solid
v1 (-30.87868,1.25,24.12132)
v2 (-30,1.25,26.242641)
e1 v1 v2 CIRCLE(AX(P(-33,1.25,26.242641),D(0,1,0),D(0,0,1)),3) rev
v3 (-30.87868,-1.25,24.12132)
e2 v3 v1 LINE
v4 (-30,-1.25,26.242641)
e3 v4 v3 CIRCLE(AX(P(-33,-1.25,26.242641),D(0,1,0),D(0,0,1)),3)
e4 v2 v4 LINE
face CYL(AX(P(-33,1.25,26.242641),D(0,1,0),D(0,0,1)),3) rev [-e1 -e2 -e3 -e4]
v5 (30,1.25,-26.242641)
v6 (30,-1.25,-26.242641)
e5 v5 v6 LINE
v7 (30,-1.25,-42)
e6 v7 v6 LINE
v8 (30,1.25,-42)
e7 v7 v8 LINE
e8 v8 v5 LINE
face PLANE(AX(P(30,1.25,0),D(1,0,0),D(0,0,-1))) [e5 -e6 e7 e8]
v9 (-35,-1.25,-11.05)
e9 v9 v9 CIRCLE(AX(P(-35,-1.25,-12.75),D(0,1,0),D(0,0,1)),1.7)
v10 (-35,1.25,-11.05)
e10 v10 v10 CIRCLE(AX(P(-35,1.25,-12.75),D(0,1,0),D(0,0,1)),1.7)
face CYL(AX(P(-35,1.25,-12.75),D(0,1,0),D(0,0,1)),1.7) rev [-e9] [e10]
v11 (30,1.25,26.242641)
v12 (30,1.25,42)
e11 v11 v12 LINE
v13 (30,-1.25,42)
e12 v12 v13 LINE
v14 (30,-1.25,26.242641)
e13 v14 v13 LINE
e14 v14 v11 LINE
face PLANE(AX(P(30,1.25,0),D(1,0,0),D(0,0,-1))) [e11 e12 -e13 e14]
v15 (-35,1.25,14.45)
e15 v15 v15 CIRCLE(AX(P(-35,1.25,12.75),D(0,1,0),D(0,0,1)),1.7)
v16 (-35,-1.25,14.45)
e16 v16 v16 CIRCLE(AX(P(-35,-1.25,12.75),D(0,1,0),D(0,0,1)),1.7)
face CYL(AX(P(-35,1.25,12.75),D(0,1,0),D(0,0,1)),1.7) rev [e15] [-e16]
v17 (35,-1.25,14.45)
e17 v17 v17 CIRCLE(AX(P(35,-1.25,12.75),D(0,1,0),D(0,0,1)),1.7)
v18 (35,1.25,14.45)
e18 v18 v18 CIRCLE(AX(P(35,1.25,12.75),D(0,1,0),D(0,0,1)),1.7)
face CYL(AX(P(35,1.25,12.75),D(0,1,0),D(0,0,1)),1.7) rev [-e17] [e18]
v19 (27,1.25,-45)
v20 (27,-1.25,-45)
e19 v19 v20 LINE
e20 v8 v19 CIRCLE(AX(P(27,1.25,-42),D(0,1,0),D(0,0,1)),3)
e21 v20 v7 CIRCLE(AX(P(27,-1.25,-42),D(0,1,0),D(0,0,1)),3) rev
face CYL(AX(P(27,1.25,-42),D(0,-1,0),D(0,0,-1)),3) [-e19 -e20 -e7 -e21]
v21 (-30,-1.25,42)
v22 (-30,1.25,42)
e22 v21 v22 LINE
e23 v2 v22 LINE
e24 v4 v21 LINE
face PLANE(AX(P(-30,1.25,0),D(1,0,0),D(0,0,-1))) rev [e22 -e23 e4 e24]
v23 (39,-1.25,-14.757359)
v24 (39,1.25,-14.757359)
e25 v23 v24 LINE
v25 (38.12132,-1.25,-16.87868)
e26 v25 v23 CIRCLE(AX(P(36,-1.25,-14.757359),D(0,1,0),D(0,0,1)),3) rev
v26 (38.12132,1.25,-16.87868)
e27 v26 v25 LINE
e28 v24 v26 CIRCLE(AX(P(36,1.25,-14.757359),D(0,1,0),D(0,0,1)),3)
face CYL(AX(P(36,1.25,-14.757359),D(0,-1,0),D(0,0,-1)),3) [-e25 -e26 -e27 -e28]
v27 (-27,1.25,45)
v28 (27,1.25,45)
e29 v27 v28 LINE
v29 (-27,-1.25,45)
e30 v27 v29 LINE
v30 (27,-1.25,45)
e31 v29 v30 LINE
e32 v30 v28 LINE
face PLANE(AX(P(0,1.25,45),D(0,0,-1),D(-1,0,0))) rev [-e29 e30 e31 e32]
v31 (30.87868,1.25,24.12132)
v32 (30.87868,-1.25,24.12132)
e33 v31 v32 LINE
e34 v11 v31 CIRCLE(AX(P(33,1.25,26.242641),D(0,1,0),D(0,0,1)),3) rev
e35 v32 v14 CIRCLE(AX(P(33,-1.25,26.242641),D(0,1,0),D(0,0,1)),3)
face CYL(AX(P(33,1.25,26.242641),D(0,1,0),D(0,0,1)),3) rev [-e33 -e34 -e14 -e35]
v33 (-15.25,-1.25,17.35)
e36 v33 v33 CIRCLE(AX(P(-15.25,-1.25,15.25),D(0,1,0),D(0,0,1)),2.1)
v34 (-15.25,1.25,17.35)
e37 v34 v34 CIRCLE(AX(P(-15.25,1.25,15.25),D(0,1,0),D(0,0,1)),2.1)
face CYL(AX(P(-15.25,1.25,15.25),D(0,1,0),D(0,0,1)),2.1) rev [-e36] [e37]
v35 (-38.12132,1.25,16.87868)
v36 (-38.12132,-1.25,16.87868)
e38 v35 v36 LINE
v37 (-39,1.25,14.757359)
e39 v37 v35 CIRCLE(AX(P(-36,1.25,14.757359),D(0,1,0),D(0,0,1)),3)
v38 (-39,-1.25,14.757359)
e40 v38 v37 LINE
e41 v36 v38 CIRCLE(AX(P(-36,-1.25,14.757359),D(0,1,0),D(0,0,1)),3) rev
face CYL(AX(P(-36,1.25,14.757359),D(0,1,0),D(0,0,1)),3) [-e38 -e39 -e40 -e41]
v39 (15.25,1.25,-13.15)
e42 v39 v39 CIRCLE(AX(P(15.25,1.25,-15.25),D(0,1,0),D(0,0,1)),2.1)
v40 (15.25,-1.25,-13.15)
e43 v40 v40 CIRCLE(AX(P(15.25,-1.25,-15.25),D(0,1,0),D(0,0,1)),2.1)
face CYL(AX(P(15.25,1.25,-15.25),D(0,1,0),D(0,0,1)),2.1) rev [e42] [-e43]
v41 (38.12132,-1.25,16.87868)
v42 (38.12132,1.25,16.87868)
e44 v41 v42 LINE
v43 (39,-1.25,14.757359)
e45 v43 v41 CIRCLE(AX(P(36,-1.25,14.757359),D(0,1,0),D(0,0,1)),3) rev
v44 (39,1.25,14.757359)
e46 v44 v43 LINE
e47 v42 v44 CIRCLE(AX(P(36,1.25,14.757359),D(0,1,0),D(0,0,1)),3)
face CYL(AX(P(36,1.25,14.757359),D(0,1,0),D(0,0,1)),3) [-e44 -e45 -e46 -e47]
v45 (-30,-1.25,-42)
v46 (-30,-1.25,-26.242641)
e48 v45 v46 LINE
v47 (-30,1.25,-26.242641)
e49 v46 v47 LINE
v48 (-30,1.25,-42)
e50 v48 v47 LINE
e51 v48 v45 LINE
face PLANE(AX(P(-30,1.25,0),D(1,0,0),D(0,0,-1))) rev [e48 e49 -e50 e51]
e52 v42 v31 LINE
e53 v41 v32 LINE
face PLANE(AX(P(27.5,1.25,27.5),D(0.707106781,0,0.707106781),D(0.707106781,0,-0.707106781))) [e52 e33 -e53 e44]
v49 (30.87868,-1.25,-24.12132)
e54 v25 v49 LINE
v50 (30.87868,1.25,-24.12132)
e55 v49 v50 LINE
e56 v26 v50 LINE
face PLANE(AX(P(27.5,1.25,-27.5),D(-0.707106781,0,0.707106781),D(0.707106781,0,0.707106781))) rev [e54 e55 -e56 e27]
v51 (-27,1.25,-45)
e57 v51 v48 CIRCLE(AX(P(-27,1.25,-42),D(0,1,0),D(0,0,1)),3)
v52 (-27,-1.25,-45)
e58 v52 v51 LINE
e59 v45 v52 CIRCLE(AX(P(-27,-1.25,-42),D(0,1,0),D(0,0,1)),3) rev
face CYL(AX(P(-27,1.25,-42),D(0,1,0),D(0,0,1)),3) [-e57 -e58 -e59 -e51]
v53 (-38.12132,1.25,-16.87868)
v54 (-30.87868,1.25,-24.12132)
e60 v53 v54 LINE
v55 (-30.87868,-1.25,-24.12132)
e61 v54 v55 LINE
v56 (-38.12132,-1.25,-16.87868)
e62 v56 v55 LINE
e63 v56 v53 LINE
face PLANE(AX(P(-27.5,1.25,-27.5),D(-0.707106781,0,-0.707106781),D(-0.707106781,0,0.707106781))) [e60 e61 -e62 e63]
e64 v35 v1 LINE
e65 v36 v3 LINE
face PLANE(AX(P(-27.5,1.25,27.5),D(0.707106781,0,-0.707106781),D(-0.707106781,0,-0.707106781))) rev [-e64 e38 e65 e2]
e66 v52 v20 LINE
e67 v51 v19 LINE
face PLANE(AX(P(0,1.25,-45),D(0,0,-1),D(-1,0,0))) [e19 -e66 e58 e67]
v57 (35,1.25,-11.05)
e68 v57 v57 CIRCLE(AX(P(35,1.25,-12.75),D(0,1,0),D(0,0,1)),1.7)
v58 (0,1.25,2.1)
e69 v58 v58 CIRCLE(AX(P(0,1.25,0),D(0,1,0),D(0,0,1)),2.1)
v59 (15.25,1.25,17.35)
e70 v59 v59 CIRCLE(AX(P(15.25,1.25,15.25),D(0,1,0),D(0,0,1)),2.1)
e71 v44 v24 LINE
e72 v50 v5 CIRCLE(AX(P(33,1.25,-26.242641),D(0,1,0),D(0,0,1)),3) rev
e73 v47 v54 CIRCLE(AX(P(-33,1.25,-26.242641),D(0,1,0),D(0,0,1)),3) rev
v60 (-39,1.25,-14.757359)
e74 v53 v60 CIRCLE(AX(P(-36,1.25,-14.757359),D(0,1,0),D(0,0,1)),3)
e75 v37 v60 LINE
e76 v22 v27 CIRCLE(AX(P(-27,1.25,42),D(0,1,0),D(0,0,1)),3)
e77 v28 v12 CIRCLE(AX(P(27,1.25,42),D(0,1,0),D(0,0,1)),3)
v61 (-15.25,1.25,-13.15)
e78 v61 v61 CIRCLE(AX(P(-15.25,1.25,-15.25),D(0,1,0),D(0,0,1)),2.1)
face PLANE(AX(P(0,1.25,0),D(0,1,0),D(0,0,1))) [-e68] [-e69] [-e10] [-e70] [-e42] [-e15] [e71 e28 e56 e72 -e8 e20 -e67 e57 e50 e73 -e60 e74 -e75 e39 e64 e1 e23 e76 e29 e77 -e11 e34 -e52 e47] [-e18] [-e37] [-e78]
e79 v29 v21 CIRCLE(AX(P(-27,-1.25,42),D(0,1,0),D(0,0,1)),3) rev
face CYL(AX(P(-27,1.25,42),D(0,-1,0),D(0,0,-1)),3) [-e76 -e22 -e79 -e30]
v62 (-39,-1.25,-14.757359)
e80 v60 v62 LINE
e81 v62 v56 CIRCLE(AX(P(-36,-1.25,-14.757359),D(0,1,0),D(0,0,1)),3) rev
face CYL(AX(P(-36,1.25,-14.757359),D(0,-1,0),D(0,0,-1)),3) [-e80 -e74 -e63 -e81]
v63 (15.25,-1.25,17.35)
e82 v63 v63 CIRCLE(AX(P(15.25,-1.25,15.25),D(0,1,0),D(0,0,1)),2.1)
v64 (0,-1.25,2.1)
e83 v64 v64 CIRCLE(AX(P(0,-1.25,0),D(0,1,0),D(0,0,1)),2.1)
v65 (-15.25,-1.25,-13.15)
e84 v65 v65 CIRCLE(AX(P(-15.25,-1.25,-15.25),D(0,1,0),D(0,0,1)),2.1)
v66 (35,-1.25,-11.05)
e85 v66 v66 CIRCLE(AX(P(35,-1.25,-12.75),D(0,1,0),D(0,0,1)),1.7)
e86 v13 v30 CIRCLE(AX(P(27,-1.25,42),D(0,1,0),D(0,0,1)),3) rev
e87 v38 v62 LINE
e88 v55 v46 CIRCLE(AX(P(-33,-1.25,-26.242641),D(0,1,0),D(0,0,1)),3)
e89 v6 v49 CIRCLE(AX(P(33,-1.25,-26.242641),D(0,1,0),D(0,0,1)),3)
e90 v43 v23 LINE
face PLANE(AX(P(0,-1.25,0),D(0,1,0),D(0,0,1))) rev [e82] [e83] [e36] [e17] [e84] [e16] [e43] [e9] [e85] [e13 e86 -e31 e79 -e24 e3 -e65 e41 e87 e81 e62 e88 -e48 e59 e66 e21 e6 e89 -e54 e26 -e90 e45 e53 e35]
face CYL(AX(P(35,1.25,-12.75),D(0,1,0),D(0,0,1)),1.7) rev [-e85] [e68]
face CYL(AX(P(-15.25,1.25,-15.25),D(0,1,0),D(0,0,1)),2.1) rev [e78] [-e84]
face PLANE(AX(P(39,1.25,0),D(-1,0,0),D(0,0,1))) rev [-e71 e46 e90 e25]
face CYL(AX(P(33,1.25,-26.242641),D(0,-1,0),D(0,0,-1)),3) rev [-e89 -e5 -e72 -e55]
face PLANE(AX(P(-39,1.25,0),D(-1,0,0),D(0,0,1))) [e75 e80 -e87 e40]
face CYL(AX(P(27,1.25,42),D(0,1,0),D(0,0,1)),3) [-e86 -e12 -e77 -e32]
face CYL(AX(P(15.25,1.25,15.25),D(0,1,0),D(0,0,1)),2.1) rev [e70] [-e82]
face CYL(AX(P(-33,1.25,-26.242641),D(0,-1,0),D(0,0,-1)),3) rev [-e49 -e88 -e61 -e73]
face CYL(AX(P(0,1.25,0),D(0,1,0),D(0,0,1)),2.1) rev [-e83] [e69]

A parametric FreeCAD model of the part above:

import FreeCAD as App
import Part
import Sketcher
Q = App.Units.Quantity


def edges_at(feature, points):
    """Names of the edges that pass closest to the given points."""
    edges = feature.Shape.Edges
    near = lambda p: min(range(len(edges)), key=lambda i: edges[i].distToShape(Part.Vertex(*p))[0])
    return sorted({f"Edge{near(p) + 1}" for p in points})

doc = App.newDocument("Part")
params = doc.addObject("Spreadsheet::Sheet", "Params")
for row, (alias, value) in enumerate([
    ("sketch1_width", "60 mm"),
    ("sketch1_height", "20 mm"),
    ("sketch1_height2", "32 mm"),
    ("pad1_length", "2.5 mm"),
    ("fillet_radius", "3 mm"),
    ("sketch2_diameter", "4.2 mm"),
    ("hole_diameter", "4.2 mm"),
    ("sketch3_diameter", "3.4 mm"),
    ("hole2_diameter", "3.4 mm"),
], start=1):
    params.set(f"A{row}", alias)
    params.set(f"B{row}", "=" + value)
    params.setAlias(f"B{row}", alias)

body = doc.addObject("PartDesign::Body", "Body")

sketch1 = doc.addObject("Sketcher::SketchObject", "Sketch")
body.addObject(sketch1)
sketch1.AttachmentSupport = (doc.XZ_Plane, [""])
sketch1.MapMode = "FlatFace"
sketch1.addGeometry([
    Part.LineSegment(App.Vector(30, -45, 0), App.Vector(-30, -45, 0)),
    Part.LineSegment(App.Vector(-30, -45, 0), App.Vector(-30, -25, 0)),
    Part.LineSegment(App.Vector(-30, -25, 0), App.Vector(-39, -16, 0)),
    Part.LineSegment(App.Vector(-39, -16, 0), App.Vector(-39, 16, 0)),
    Part.LineSegment(App.Vector(-39, 16, 0), App.Vector(-30, 25, 0)),
    Part.LineSegment(App.Vector(-30, 25, 0), App.Vector(-30, 45, 0)),
    Part.LineSegment(App.Vector(-30, 45, 0), App.Vector(30, 45, 0)),
    Part.LineSegment(App.Vector(30, 45, 0), App.Vector(30, 25, 0)),
    Part.LineSegment(App.Vector(30, 25, 0), App.Vector(39, 16, 0)),
    Part.LineSegment(App.Vector(39, 16, 0), App.Vector(39, -16, 0)),
    Part.LineSegment(App.Vector(39, -16, 0), App.Vector(30, -25, 0)),
    Part.LineSegment(App.Vector(30, -25, 0), App.Vector(30, -45, 0)),
], False)
sketch1.addConstraint([
    Sketcher.Constraint("Coincident", 0, 2, 1, 1),
    Sketcher.Constraint("Coincident", 1, 2, 2, 1),
    Sketcher.Constraint("Coincident", 2, 2, 3, 1),
    Sketcher.Constraint("Coincident", 3, 2, 4, 1),
    Sketcher.Constraint("Coincident", 4, 2, 5, 1),
    Sketcher.Constraint("Coincident", 5, 2, 6, 1),
    Sketcher.Constraint("Coincident", 6, 2, 7, 1),
    Sketcher.Constraint("Coincident", 7, 2, 8, 1),
    Sketcher.Constraint("Coincident", 8, 2, 9, 1),
    Sketcher.Constraint("Coincident", 9, 2, 10, 1),
    Sketcher.Constraint("Coincident", 10, 2, 11, 1),
    Sketcher.Constraint("Coincident", 11, 2, 0, 1),
    Sketcher.Constraint("Horizontal", 0),
    Sketcher.Constraint("Vertical", 1),
    Sketcher.Constraint("Vertical", 3),
    Sketcher.Constraint("Vertical", 5),
    Sketcher.Constraint("Horizontal", 6),
    Sketcher.Constraint("Vertical", 7),
    Sketcher.Constraint("Vertical", 9),
    Sketcher.Constraint("Vertical", 11),
    Sketcher.Constraint("Symmetric", 0, 2, 6, 2, -1, 1),
    Sketcher.Constraint("Symmetric", 2, 2, 8, 2, -1, 1),
    Sketcher.Constraint("Symmetric", 4, 2, 10, 2, -1, 1),
    Sketcher.Constraint("Symmetric", 4, 2, 7, 2, -2),
    Sketcher.Constraint("Perpendicular", 2, 4),
    Sketcher.Constraint("Perpendicular", 4, 8),
    Sketcher.Constraint("Perpendicular", 8, 10),
    Sketcher.Constraint("Horizontal", 3, 2, 8, 2),
    Sketcher.Constraint("DistanceX", 0, 2, 0, 1, Q("60 mm")),
    Sketcher.Constraint("DistanceY", 1, 1, 1, 2, Q("20 mm")),
    Sketcher.Constraint("DistanceY", 3, 1, 3, 2, Q("32 mm")),
    Sketcher.Constraint("DistanceY", 0, 2, -1, 1, Q("45 mm")),
])
sketch1.setExpression("Constraints[28]", "Params.sketch1_width")
sketch1.setExpression("Constraints[29]", "Params.sketch1_height")
sketch1.setExpression("Constraints[30]", "Params.sketch1_height2")
pad1 = doc.addObject("PartDesign::Pad", "Pad")
body.addObject(pad1)
pad1.Profile = sketch1
pad1.setExpression("Length", "Params.pad1_length")
pad1.Midplane = True
doc.recompute()

fillet = doc.addObject("PartDesign::Fillet", "Fillet")
body.addObject(fillet)
fillet.Base = (pad1, edges_at(pad1, [
    (30, 0, -25),
    (39, 0, -16),
    (39, 0, 16),
    (30, 0, 25),
    (30, 0, 45),
    (-30, 0, 45),
    (-30, 0, 25),
    (-39, 0, 16),
    (-39, 0, -16),
    (-30, 0, -25),
    (-30, 0, -45),
    (30, 0, -45),
]))
fillet.setExpression("Radius", "Params.fillet_radius")

sketch2 = doc.addObject("Sketcher::SketchObject", "Sketch001")
body.addObject(sketch2)
sketch2.AttachmentSupport = (doc.XZ_Plane, [""])
sketch2.MapMode = "FlatFace"
sketch2.AttachmentOffset = App.Placement(App.Vector(0, 0, -1.25), App.Rotation())
sketch2.addGeometry([
    Part.Circle(App.Vector(0, 0, 0), App.Vector(0, 0, 1), 2.1),
    Part.Circle(App.Vector(15.2, 15.2, 0), App.Vector(0, 0, 1), 2.1),
    Part.Circle(App.Vector(-15.2, -15.2, 0), App.Vector(0, 0, 1), 2.1),
    Part.Circle(App.Vector(-15.2, 15.2, 0), App.Vector(0, 0, 1), 2.1),
    Part.Circle(App.Vector(15.2, -15.2, 0), App.Vector(0, 0, 1), 2.1),
], False)
sketch2.addConstraint([
    Sketcher.Constraint("Coincident", 0, 3, -1, 1),
    Sketcher.Constraint("Equal", 0, 1),
    Sketcher.Constraint("Equal", 1, 2),
    Sketcher.Constraint("Equal", 2, 3),
    Sketcher.Constraint("Equal", 3, 4),
    Sketcher.Constraint("Symmetric", 1, 3, 2, 3, -1, 1),
    Sketcher.Constraint("Symmetric", 3, 3, 4, 3, -1, 1),
    Sketcher.Constraint("Symmetric", 1, 3, 3, 3, -2),
    Sketcher.Constraint("Diameter", 0, Q("4.2 mm")),
    Sketcher.Constraint("DistanceX", 2, 3, 1, 3, Q("30.5 mm")),
    Sketcher.Constraint("DistanceY", 2, 3, 1, 3, Q("30.5 mm")),
])
sketch2.setExpression("Constraints[8]", "Params.sketch2_diameter")
doc.recompute()
hole = doc.addObject("PartDesign::Hole", "Hole")
body.addObject(hole)
hole.Profile = sketch2
hole.ThreadType = "None"
hole.setExpression("Diameter", "Params.hole_diameter")
hole.DepthType = "ThroughAll"
hole.Reversed = True

sketch3 = doc.addObject("Sketcher::SketchObject", "Sketch002")
body.addObject(sketch3)
sketch3.AttachmentSupport = (doc.XZ_Plane, [""])
sketch3.MapMode = "FlatFace"
sketch3.AttachmentOffset = App.Placement(App.Vector(0, 0, -1.25), App.Rotation())
sketch3.addGeometry([
    Part.Circle(App.Vector(35, -12.8, 0), App.Vector(0, 0, 1), 1.7),
    Part.Circle(App.Vector(35, 12.8, 0), App.Vector(0, 0, 1), 1.7),
    Part.Circle(App.Vector(-35, 12.8, 0), App.Vector(0, 0, 1), 1.7),
    Part.Circle(App.Vector(-35, -12.8, 0), App.Vector(0, 0, 1), 1.7),
], False)
sketch3.addConstraint([
    Sketcher.Constraint("Equal", 0, 1),
    Sketcher.Constraint("Equal", 1, 2),
    Sketcher.Constraint("Equal", 2, 3),
    Sketcher.Constraint("Symmetric", 0, 3, 2, 3, -1, 1),
    Sketcher.Constraint("Symmetric", 1, 3, 3, 3, -1, 1),
    Sketcher.Constraint("Symmetric", 1, 3, 2, 3, -2),
    Sketcher.Constraint("Diameter", 0, Q("3.4 mm")),
    Sketcher.Constraint("DistanceX", -1, 1, 0, 3, Q("35 mm")),
    Sketcher.Constraint("DistanceY", 0, 3, 1, 3, Q("25.5 mm")),
])
sketch3.setExpression("Constraints[6]", "Params.sketch3_diameter")
doc.recompute()
hole2 = doc.addObject("PartDesign::Hole", "Hole001")
body.addObject(hole2)
hole2.Profile = sketch3
hole2.ThreadType = "None"
hole2.setExpression("Diameter", "Params.hole2_diameter")
hole2.DepthType = "ThroughAll"
hole2.Reversed = True

doc.recompute()
